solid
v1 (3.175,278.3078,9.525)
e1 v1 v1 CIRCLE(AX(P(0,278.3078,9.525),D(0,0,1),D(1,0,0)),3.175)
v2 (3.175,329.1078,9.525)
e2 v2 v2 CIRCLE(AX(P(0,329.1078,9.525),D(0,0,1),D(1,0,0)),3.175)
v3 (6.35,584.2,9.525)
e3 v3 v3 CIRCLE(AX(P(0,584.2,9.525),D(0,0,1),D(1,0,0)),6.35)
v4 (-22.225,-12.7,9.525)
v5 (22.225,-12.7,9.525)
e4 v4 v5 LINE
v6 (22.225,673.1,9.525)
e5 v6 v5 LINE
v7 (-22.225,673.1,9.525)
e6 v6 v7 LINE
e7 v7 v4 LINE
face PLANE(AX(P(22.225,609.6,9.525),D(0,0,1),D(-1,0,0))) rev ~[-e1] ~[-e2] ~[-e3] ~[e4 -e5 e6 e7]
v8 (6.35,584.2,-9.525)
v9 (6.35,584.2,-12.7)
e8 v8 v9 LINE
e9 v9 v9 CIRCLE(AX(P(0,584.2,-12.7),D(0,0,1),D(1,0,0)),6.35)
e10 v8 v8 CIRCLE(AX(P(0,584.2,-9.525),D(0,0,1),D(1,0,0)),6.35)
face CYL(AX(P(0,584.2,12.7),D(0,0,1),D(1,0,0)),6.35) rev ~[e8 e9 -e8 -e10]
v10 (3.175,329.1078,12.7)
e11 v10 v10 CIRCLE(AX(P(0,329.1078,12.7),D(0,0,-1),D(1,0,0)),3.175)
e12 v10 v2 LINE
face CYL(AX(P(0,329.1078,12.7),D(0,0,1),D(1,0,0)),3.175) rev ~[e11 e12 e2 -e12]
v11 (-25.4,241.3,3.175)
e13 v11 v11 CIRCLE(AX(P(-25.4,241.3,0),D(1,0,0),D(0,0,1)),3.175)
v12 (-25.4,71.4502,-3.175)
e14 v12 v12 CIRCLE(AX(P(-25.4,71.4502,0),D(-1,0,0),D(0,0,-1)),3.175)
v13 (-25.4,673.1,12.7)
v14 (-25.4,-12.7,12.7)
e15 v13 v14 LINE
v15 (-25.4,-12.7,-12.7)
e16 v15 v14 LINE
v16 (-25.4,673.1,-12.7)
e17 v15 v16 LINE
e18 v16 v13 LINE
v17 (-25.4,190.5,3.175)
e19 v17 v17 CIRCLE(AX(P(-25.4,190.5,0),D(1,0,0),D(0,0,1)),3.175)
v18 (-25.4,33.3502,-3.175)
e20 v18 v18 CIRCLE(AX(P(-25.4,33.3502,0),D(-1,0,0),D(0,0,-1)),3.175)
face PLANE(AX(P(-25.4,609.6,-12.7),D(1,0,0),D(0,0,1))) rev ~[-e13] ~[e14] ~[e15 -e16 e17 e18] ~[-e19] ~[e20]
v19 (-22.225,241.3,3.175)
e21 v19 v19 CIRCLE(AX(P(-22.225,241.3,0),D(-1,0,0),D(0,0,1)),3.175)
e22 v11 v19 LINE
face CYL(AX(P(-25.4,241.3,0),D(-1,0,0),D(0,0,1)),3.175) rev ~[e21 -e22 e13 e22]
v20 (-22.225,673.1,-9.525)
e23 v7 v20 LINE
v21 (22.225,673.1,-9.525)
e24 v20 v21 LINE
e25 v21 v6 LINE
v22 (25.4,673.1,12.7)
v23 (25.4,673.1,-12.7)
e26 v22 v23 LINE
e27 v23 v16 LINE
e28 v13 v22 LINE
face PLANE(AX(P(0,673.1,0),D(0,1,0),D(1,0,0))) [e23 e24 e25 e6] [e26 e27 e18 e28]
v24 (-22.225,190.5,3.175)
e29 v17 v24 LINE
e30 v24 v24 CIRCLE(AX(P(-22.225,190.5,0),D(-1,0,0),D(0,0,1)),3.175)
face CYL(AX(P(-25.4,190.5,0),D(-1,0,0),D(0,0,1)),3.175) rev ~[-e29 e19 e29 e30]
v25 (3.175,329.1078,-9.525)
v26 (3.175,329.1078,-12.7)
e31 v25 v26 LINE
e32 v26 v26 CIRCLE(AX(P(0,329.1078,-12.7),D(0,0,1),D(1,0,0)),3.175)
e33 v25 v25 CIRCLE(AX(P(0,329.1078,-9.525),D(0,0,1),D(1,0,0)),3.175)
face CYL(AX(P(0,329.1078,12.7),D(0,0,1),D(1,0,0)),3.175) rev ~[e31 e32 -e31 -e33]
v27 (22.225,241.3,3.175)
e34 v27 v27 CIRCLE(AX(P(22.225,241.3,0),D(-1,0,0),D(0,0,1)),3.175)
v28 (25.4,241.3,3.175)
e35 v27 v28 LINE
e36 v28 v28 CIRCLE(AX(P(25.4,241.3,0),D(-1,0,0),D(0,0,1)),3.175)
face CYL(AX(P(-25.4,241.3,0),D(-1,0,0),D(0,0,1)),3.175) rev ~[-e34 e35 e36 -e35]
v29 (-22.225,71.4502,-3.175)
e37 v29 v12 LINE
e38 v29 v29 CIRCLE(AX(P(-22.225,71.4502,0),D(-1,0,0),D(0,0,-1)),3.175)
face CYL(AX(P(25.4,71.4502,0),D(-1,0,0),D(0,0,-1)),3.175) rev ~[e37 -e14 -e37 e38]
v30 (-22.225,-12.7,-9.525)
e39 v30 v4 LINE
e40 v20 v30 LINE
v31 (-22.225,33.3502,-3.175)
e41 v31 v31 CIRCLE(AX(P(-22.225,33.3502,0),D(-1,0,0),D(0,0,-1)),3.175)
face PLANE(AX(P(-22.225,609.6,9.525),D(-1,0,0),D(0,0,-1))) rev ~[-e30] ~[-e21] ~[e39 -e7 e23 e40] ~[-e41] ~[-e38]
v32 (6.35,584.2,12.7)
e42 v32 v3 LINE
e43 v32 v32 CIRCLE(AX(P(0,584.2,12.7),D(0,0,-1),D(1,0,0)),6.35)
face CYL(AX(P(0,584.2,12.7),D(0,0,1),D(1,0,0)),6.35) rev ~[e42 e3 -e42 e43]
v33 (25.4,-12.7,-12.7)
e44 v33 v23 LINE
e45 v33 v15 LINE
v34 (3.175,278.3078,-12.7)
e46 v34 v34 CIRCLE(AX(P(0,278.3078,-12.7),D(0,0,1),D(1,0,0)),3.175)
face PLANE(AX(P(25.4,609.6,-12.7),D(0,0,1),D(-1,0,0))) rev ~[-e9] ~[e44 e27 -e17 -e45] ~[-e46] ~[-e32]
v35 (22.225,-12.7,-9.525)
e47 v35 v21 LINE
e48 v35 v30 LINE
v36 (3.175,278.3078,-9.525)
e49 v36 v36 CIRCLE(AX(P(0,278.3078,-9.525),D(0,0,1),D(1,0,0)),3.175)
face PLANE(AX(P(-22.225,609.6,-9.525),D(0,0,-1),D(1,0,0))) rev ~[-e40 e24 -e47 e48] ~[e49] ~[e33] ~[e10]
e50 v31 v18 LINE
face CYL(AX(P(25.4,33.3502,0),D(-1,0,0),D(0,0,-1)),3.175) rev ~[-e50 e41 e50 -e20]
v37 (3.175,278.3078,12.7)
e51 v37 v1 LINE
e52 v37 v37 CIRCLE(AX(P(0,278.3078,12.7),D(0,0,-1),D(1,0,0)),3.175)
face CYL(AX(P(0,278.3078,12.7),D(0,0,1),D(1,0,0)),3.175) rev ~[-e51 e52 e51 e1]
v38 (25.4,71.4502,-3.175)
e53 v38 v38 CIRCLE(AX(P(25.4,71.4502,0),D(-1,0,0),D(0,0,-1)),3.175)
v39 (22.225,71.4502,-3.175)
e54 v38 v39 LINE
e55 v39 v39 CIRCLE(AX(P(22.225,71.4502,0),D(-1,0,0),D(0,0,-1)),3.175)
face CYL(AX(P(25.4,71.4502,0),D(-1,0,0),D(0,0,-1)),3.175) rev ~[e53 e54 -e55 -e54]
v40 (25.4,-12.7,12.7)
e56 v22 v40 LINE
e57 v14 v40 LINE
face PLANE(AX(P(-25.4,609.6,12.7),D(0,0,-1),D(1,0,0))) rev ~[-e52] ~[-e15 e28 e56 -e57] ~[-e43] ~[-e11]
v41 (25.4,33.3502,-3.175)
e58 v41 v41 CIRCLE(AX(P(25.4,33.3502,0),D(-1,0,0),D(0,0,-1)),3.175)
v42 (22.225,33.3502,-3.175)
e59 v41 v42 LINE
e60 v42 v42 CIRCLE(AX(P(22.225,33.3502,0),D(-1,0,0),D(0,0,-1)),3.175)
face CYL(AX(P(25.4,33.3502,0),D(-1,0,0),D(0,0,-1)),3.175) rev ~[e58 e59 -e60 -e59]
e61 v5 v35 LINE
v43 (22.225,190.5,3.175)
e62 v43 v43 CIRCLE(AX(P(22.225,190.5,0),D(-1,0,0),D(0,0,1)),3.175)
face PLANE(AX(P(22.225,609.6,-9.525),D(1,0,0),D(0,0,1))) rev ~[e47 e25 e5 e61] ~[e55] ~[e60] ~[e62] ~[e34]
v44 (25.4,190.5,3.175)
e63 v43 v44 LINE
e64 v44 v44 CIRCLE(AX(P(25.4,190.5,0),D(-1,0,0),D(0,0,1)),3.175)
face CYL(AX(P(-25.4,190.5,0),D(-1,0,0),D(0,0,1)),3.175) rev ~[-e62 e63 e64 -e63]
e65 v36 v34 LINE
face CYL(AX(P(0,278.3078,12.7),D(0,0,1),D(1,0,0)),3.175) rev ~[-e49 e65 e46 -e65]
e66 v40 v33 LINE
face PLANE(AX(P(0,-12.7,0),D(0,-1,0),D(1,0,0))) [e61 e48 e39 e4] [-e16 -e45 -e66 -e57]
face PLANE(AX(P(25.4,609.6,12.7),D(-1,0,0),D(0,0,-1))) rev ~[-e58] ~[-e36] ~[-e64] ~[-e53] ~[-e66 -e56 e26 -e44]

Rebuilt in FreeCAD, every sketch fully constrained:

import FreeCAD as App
import Part
import Sketcher

V = App.Vector
Q = App.Units.Quantity


def add_polygon(sketch, points):
    """Adds a closed chain of lines whose ends are joined by coincident constraints."""
    first, n = sketch.GeometryCount, len(points)
    for a, b in zip(points, points[1:] + points[:1]):
        sketch.addGeometry(Part.LineSegment(App.Vector(*a, 0), App.Vector(*b, 0)), False)
    for i in range(n):
        sketch.addConstraint(Sketcher.Constraint("Coincident", first + i, 2, first + (i + 1) % n, 1))

doc = App.newDocument("Part")
params = doc.addObject("Spreadsheet::Sheet", "Params")
for row, (alias, value) in enumerate([
    ("sketch1_width", "2 in"),
    ("sketch1_height", "1 in"),
    ("sketch1_width2", "1.75 in"),
    ("sketch1_height2", "0.75 in"),
    ("pad1_length", "24 in"),
    ("sketch2_diameter", "0.5 in"),
    ("pocket1_length", "24 in"),
    ("sketch3_width", "2 in"),
    ("sketch3_height", "1 in"),
    ("sketch3_width2", "1.75 in"),
    ("sketch3_height2", "0.75 in"),
    ("pad2_length", "0.5 in"),
    ("sketch4_width", "2 in"),
    ("sketch4_height", "1 in"),
    ("sketch4_width2", "1.75 in"),
    ("sketch4_height2", "0.75 in"),
    ("pad3_length", "2.5 in"),
    ("sketch5_diameter", "0.25 in"),
    ("pocket2_length", "2 in"),
    ("sketch6_diameter", "0.25 in"),
    ("hole_diameter", "0.25 in"),
    ("sketch7_diameter", "0.25 in"),
    ("pocket3_length", "2 in"),
], start=1):
    params.set(f"A{row}", alias)
    params.set(f"B{row}", "=" + value)
    params.setAlias(f"B{row}", alias)

body = doc.addObject("PartDesign::Body", "Body")

sketch1 = body.newObject("Sketcher::SketchObject", "Sketch")
sketch1.AttachmentSupport = (doc.getObject("XZ_Plane"), [""])
sketch1.MapMode = "FlatFace"
add_polygon(sketch1, [(25, 13), (25, -13), (-25, -13), (-25, 13)])
add_polygon(sketch1, [(-22, 10), (-22, -10), (22, -10), (22, 10)])
sketch1.addConstraint([
    Sketcher.Constraint("Vertical", 0),
    Sketcher.Constraint("Horizontal", 1),
    Sketcher.Constraint("Vertical", 2),
    Sketcher.Constraint("Horizontal", 3),
    Sketcher.Constraint("Vertical", 4),
    Sketcher.Constraint("Horizontal", 5),
    Sketcher.Constraint("Vertical", 6),
    Sketcher.Constraint("Horizontal", 7),
    Sketcher.Constraint("Symmetric", 0, 2, 2, 2, -1, 1),
    Sketcher.Constraint("Symmetric", 4, 2, 6, 2, -1, 1),
    Sketcher.Constraint("DistanceX", 1, 2, 1, 1, Q("2 in")),
    Sketcher.Constraint("DistanceY", 0, 2, 0, 1, Q("1 in")),
    Sketcher.Constraint("DistanceX", 5, 1, 5, 2, Q("1.75 in")),
    Sketcher.Constraint("DistanceY", 4, 2, 4, 1, Q("0.75 in")),
])
sketch1.setExpression("Constraints[18]", "Params.sketch1_width")
sketch1.setExpression("Constraints[19]", "Params.sketch1_height")
sketch1.setExpression("Constraints[20]", "Params.sketch1_width2")
sketch1.setExpression("Constraints[21]", "Params.sketch1_height2")
pad1 = body.newObject("PartDesign::Pad", "Pad")
pad1.Profile = sketch1
pad1.setExpression("Length", "Params.pad1_length")
pad1.Reversed = True

sketch2 = body.newObject("Sketcher::SketchObject", "Sketch001")
sketch2.AttachmentSupport = (doc.getObject("XY_Plane"), [""])
sketch2.MapMode = "FlatFace"
sketch2.AttachmentOffset = App.Placement(V(0, 0, 0.5 * 25.4), App.Rotation())
sketch2.addGeometry(Part.Circle(V(0, 584, 0), V(0, 0, 1), 6), False)
sketch2.addConstraint([
    Sketcher.Constraint("PointOnObject", 0, 3, -2),
    Sketcher.Constraint("Diameter", 0, Q("0.5 in")),
    Sketcher.Constraint("DistanceY", -1, 1, 0, 3, Q("23 in")),
])
sketch2.setExpression("Constraints[1]", "Params.sketch2_diameter")
pocket1 = body.newObject("PartDesign::Pocket", "Pocket")
pocket1.Profile = sketch2
pocket1.setExpression("Length", "Params.pocket1_length")

sketch3 = body.newObject("Sketcher::SketchObject", "Sketch002")
sketch3.AttachmentSupport = (doc.getObject("XZ_Plane"), [""])
sketch3.MapMode = "FlatFace"
add_polygon(sketch3, [(-25, -13), (25, -13), (25, 13), (-25, 13)])
add_polygon(sketch3, [(-22, 10), (22, 10), (22, -10), (-22, -10)])
sketch3.addConstraint([
    Sketcher.Constraint("Horizontal", 0),
    Sketcher.Constraint("Vertical", 1),
    Sketcher.Constraint("Horizontal", 2),
    Sketcher.Constraint("Vertical", 3),
    Sketcher.Constraint("Horizontal", 4),
    Sketcher.Constraint("Vertical", 5),
    Sketcher.Constraint("Horizontal", 6),
    Sketcher.Constraint("Vertical", 7),
    Sketcher.Constraint("Symmetric", 0, 2, 2, 2, -1, 1),
    Sketcher.Constraint("Symmetric", 4, 2, 6, 2, -1, 1),
    Sketcher.Constraint("DistanceX", 0, 1, 0, 2, Q("2 in")),
    Sketcher.Constraint("DistanceY", 1, 1, 1, 2, Q("1 in")),
    Sketcher.Constraint("DistanceX", 4, 1, 4, 2, Q("1.75 in")),
    Sketcher.Constraint("DistanceY", 5, 2, 5, 1, Q("0.75 in")),
])
sketch3.setExpression("Constraints[18]", "Params.sketch3_width")
sketch3.setExpression("Constraints[19]", "Params.sketch3_height")
sketch3.setExpression("Constraints[20]", "Params.sketch3_width2")
sketch3.setExpression("Constraints[21]", "Params.sketch3_height2")
pad2 = body.newObject("PartDesign::Pad", "Pad001")
pad2.Profile = sketch3
pad2.setExpression("Length", "Params.pad2_length")

sketch4 = body.newObject("Sketcher::SketchObject", "Sketch003")
sketch4.AttachmentSupport = (doc.getObject("XZ_Plane"), [""])
sketch4.MapMode = "FlatFace"
sketch4.AttachmentOffset = App.Placement(V(0, 0, -24 * 25.4), App.Rotation())
add_polygon(sketch4, [(25, 13), (25, -13), (-25, -13), (-25, 13)])
add_polygon(sketch4, [(-22, -10), (22, -10), (22, 10), (-22, 10)])
sketch4.addConstraint([
    Sketcher.Constraint("Vertical", 0),
    Sketcher.Constraint("Horizontal", 1),
    Sketcher.Constraint("Vertical", 2),
    Sketcher.Constraint("Horizontal", 3),
    Sketcher.Constraint("Horizontal", 4),
    Sketcher.Constraint("Vertical", 5),
    Sketcher.Constraint("Horizontal", 6),
    Sketcher.Constraint("Vertical", 7),
    Sketcher.Constraint("Symmetric", 0, 2, 2, 2, -1, 1),
    Sketcher.Constraint("Symmetric", 4, 2, 6, 2, -1, 1),
    Sketcher.Constraint("DistanceX", 1, 2, 1, 1, Q("2 in")),
    Sketcher.Constraint("DistanceY", 0, 2, 0, 1, Q("1 in")),
    Sketcher.Constraint("DistanceX", 4, 1, 4, 2, Q("1.75 in")),
    Sketcher.Constraint("DistanceY", 5, 1, 5, 2, Q("0.75 in")),
])
sketch4.setExpression("Constraints[18]", "Params.sketch4_width")
sketch4.setExpression("Constraints[19]", "Params.sketch4_height")
sketch4.setExpression("Constraints[20]", "Params.sketch4_width2")
sketch4.setExpression("Constraints[21]", "Params.sketch4_height2")
pad3 = body.newObject("PartDesign::Pad", "Pad002")
pad3.Profile = sketch4
pad3.setExpression("Length", "Params.pad3_length")
pad3.Reversed = True

sketch5 = body.newObject("Sketcher::SketchObject", "Sketch004")
sketch5.AttachmentSupport = (doc.getObject("XY_Plane"), [""])
sketch5.MapMode = "FlatFace"
sketch5.AttachmentOffset = App.Placement(V(0, 0, 0.5 * 25.4), App.Rotation())
sketch5.addGeometry([
    Part.Circle(V(0, 329.1, 0), V(0, 0, 1), 3.2),
    Part.Circle(V(0, 278.3, 0), V(0, 0, 1), 3.2),
], False)
sketch5.addConstraint([
    Sketcher.Constraint("Equal", 0, 1),
    Sketcher.Constraint("PointOnObject", 0, 3, -2),
    Sketcher.Constraint("PointOnObject", 1, 3, -2),
    Sketcher.Constraint("Diameter", 0, Q("0.25 in")),
    Sketcher.Constraint("DistanceY", 1, 3, 0, 3, Q("2 in")),
    Sketcher.Constraint("DistanceY", -1, 1, 0, 3, Q("12.957 in")),
])
sketch5.setExpression("Constraints[3]", "Params.sketch5_diameter")
pocket2 = body.newObject("PartDesign::Pocket", "Pocket001")
pocket2.Profile = sketch5
pocket2.setExpression("Length", "Params.pocket2_length")

sketch6 = body.newObject("Sketcher::SketchObject", "Sketch005")
sketch6.AttachmentSupport = (doc.getObject("YZ_Plane"), [""])
sketch6.MapMode = "FlatFace"
sketch6.AttachmentOffset = App.Placement(V(0, 0, 1 * 25.4), App.Rotation())
sketch6.addGeometry([
    Part.Circle(V(71.5, 0, 0), V(0, 0, 1), 3.2),
    Part.Circle(V(33.4, 0, 0), V(0, 0, 1), 3.2),
], False)
sketch6.addConstraint([
    Sketcher.Constraint("Equal", 0, 1),
    Sketcher.Constraint("PointOnObject", 0, 3, -1),
    Sketcher.Constraint("PointOnObject", 1, 3, -1),
    Sketcher.Constraint("Diameter", 0, Q("0.25 in")),
    Sketcher.Constraint("DistanceX", 1, 3, 0, 3, Q("1.5 in")),
    Sketcher.Constraint("DistanceX", -1, 1, 0, 3, Q("2.813 in")),
])
sketch6.setExpression("Constraints[3]", "Params.sketch6_diameter")
doc.recompute()
hole = body.newObject("PartDesign::Hole", "Hole")
hole.Profile = sketch6
hole.ThreadType = "None"
hole.setExpression("Diameter", "Params.hole_diameter")
hole.DepthType = "ThroughAll"

sketch7 = body.newObject("Sketcher::SketchObject", "Sketch006")
sketch7.AttachmentSupport = (doc.getObject("YZ_Plane"), [""])
sketch7.MapMode = "FlatFace"
sketch7.AttachmentOffset = App.Placement(V(0, 0, -1 * 25.4), App.Rotation())
sketch7.addGeometry([
    Part.Circle(V(241.3, 0, 0), V(0, 0, 1), 3.2),
    Part.Circle(V(190.5, 0, 0), V(0, 0, 1), 3.2),
], False)
sketch7.addConstraint([
    Sketcher.Constraint("Equal", 0, 1),
    Sketcher.Constraint("PointOnObject", 0, 3, -1),
    Sketcher.Constraint("PointOnObject", 1, 3, -1),
    Sketcher.Constraint("Diameter", 0, Q("0.25 in")),
    Sketcher.Constraint("DistanceX", 1, 3, 0, 3, Q("2 in")),
    Sketcher.Constraint("DistanceX", -1, 1, 0, 3, Q("9.5 in")),
])
sketch7.setExpression("Constraints[3]", "Params.sketch7_diameter")
pocket3 = body.newObject("PartDesign::Pocket", "Pocket002")
pocket3.Profile = sketch7
pocket3.setExpression("Length", "Params.pocket3_length")
pocket3.Reversed = True

doc.recompute()
